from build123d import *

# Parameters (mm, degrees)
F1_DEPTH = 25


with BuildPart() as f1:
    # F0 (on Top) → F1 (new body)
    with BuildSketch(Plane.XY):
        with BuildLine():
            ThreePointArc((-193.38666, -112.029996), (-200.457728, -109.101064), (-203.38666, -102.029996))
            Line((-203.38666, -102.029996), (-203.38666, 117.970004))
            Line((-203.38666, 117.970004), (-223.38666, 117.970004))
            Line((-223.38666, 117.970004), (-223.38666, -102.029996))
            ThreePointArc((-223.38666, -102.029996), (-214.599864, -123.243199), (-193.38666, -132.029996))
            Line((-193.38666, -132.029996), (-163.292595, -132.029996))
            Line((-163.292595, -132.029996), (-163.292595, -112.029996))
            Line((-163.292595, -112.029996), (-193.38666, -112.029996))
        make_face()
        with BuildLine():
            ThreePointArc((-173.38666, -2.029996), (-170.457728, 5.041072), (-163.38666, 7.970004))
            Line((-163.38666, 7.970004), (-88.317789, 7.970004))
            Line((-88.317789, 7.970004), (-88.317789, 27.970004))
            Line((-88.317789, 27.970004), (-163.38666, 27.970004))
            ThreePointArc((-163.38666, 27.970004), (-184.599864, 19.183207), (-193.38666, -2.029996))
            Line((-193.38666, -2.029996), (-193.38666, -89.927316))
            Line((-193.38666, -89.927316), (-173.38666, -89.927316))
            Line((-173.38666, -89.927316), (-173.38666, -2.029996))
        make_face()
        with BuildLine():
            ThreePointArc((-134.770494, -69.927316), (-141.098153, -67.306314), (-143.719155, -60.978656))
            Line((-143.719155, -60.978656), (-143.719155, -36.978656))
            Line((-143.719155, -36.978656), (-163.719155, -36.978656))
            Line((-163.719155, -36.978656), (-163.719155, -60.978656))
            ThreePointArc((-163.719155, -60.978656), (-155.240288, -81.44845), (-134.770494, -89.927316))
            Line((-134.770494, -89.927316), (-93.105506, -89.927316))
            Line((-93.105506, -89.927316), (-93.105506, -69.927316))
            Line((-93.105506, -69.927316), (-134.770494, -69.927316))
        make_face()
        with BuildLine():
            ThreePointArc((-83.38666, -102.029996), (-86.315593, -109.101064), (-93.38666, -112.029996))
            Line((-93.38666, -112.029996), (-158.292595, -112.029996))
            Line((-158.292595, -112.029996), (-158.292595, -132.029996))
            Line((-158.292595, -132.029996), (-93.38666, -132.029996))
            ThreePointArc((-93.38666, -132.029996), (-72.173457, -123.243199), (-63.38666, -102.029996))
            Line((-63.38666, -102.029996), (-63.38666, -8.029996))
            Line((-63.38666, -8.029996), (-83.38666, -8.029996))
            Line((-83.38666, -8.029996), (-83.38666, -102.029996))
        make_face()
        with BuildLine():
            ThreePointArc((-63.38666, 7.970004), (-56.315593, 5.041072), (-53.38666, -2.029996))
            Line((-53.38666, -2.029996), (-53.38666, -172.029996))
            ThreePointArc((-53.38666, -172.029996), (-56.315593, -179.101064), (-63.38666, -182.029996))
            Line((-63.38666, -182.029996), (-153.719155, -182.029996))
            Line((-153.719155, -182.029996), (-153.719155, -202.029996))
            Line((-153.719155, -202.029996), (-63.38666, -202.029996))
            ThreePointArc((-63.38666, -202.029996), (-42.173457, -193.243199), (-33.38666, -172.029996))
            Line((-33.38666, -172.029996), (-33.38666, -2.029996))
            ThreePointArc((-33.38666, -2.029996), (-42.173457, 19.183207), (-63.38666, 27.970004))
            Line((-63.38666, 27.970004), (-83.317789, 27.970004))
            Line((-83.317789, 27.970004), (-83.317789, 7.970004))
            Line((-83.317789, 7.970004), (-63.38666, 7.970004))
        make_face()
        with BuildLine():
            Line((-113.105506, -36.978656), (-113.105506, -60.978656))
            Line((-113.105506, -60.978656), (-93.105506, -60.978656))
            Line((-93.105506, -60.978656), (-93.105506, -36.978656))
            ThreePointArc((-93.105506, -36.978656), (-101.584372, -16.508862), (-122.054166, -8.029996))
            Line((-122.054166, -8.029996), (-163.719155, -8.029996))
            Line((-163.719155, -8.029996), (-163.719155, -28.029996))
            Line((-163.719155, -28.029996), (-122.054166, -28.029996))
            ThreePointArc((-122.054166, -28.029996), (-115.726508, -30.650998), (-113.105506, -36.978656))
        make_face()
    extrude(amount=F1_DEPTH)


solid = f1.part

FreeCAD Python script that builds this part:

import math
import FreeCAD as App
import Part
import Sketcher

V = App.Vector
Q = App.Units.Quantity

doc = App.newDocument("Part")
body = doc.addObject("PartDesign::Body", "Body")
body.AllowCompound = True

# Sketch on XY plane
sketch1 = body.newObject("Sketcher::SketchObject", "Sketch")
sketch1.AttachmentSupport = (doc.getObject("XY_Plane"), [""])
sketch1.MapMode = "FlatFace"
sketch1.addGeometry([
    Part.ArcOfCircle(Part.Circle(V(-193.386661, -102.029997, 0), V(0, 0, 1), 9.999999), math.radians(179.999996), math.radians(270.000004)),  # 0
    Part.LineSegment(V(-203.38666, -102.029996, 0), V(-203.38666, 117.970004, 0)),  # 1
    Part.LineSegment(V(-203.38666, 117.970004, 0), V(-223.38666, 117.970004, 0)),  # 2
    Part.LineSegment(V(-223.38666, 117.970004, 0), V(-223.38666, -102.029996, 0)),  # 3
    Part.ArcOfCircle(Part.Circle(V(-193.38666, -102.029996, 0), V(0, 0, 1), 30), math.radians(180), math.radians(270)),  # 4
    Part.LineSegment(V(-193.38666, -132.029996, 0), V(-163.292595, -132.029996, 0)),  # 5
    Part.LineSegment(V(-163.292595, -132.029996, 0), V(-163.292595, -112.029996, 0)),  # 6
    Part.LineSegment(V(-163.292595, -112.029996, 0), V(-193.38666, -112.029996, 0)),  # 7
    Part.ArcOfCircle(Part.Circle(V(-163.386661, -2.029995, 0), V(0, 0, 1), 9.999999), math.radians(89.999996), math.radians(180.000004)),  # 8
    Part.LineSegment(V(-163.38666, 7.970004, 0), V(-88.317789, 7.970004, 0)),  # 9
    Part.LineSegment(V(-88.317789, 7.970004, 0), V(-88.317789, 27.970004, 0)),  # 10
    Part.LineSegment(V(-88.317789, 27.970004, 0), V(-163.38666, 27.970004, 0)),  # 11
    Part.ArcOfCircle(Part.Circle(V(-163.38666, -2.029996, 0), V(0, 0, 1), 30), math.radians(90), math.radians(180)),  # 12
    Part.LineSegment(V(-193.38666, -2.029996, 0), V(-193.38666, -89.927316, 0)),  # 13
    Part.LineSegment(V(-193.38666, -89.927316, 0), V(-173.38666, -89.927316, 0)),  # 14
    Part.LineSegment(V(-173.38666, -89.927316, 0), V(-173.38666, -2.029996, 0)),  # 15
    Part.ArcOfCircle(Part.Circle(V(-134.770494, -60.978655, 0), V(0, 0, 1), 8.948661), math.radians(-179.999996), math.radians(-89.999997)),  # 16
    Part.LineSegment(V(-143.719155, -60.978656, 0), V(-143.719155, -36.978656, 0)),  # 17
    Part.LineSegment(V(-143.719155, -36.978656, 0), V(-163.719155, -36.978656, 0)),  # 18
    Part.LineSegment(V(-163.719155, -36.978656, 0), V(-163.719155, -60.978656, 0)),  # 19
    Part.ArcOfCircle(Part.Circle(V(-134.770494, -60.978655, 0), V(0, 0, 1), 28.948661), math.radians(-179.999998), math.radians(-90)),  # 20
    Part.LineSegment(V(-134.770494, -89.927316, 0), V(-93.105506, -89.927316, 0)),  # 21
    Part.LineSegment(V(-93.105506, -89.927316, 0), V(-93.105506, -69.927316, 0)),  # 22
    Part.LineSegment(V(-93.105506, -69.927316, 0), V(-134.770494, -69.927316, 0)),  # 23
    Part.ArcOfCircle(Part.Circle(V(-93.386661, -102.029995, 0), V(0, 0, 1), 10.000001), math.radians(-89.999994), math.radians(-0.000006)),  # 24
    Part.LineSegment(V(-93.38666, -112.029996, 0), V(-158.292595, -112.029996, 0)),  # 25
    Part.LineSegment(V(-158.292595, -112.029996, 0), V(-158.292595, -132.029996, 0)),  # 26
    Part.LineSegment(V(-158.292595, -132.029996, 0), V(-93.38666, -132.029996, 0)),  # 27
    Part.ArcOfCircle(Part.Circle(V(-93.386661, -102.029995, 0), V(0, 0, 1), 30.000001), math.radians(-89.999997), math.radians(-0.000003)),  # 28
    Part.LineSegment(V(-63.38666, -102.029996, 0), V(-63.38666, -8.029996, 0)),  # 29
    Part.LineSegment(V(-63.38666, -8.029996, 0), V(-83.38666, -8.029996, 0)),  # 30
    Part.LineSegment(V(-83.38666, -8.029996, 0), V(-83.38666, -102.029996, 0)),  # 31
    Part.ArcOfCircle(Part.Circle(V(-63.386661, -2.029997, 0), V(0, 0, 1), 10.000001), math.radians(0.000006), math.radians(89.999994)),  # 32
    Part.LineSegment(V(-53.38666, -2.029996, 0), V(-53.38666, -172.029996, 0)),  # 33
    Part.ArcOfCircle(Part.Circle(V(-63.386661, -172.029995, 0), V(0, 0, 1), 10.000001), math.radians(-89.999994), math.radians(-0.000006)),  # 34
    Part.LineSegment(V(-63.38666, -182.029996, 0), V(-153.719155, -182.029996, 0)),  # 35
    Part.LineSegment(V(-153.719155, -182.029996, 0), V(-153.719155, -202.029996, 0)),  # 36
    Part.LineSegment(V(-153.719155, -202.029996, 0), V(-63.38666, -202.029996, 0)),  # 37
    Part.ArcOfCircle(Part.Circle(V(-63.386661, -172.029995, 0), V(0, 0, 1), 30.000001), math.radians(-89.999997), math.radians(-0.000003)),  # 38
    Part.LineSegment(V(-33.38666, -172.029996, 0), V(-33.38666, -2.029996, 0)),  # 39
    Part.ArcOfCircle(Part.Circle(V(-63.386661, -2.029997, 0), V(0, 0, 1), 30.000001), math.radians(0.000003), math.radians(89.999997)),  # 40
    Part.LineSegment(V(-63.38666, 27.970004, 0), V(-83.317789, 27.970004, 0)),  # 41
    Part.LineSegment(V(-83.317789, 27.970004, 0), V(-83.317789, 7.970004, 0)),  # 42
    Part.LineSegment(V(-83.317789, 7.970004, 0), V(-63.38666, 7.970004, 0)),  # 43
    Part.LineSegment(V(-113.105506, -36.978656, 0), V(-113.105506, -60.978656, 0)),  # 44
    Part.LineSegment(V(-113.105506, -60.978656, 0), V(-93.105506, -60.978656, 0)),  # 45
    Part.LineSegment(V(-93.105506, -60.978656, 0), V(-93.105506, -36.978656, 0)),  # 46
    Part.ArcOfCircle(Part.Circle(V(-122.054165, -36.978655, 0), V(0, 0, 1), 28.948659), math.radians(-0.000001), math.radians(90.000001)),  # 47
    Part.LineSegment(V(-122.054166, -8.029996, 0), V(-163.719155, -8.029996, 0)),  # 48
    Part.LineSegment(V(-163.719155, -8.029996, 0), V(-163.719155, -28.029996, 0)),  # 49
    Part.LineSegment(V(-163.719155, -28.029996, 0), V(-122.054166, -28.029996, 0)),  # 50
    Part.ArcOfCircle(Part.Circle(V(-122.054167, -36.978657, 0), V(0, 0, 1), 8.948661), math.radians(0.000004), math.radians(89.999996)),  # 51
], False)
sketch1.addConstraint([
    Sketcher.Constraint("Tangent", 0, 1, 1, 1),
    Sketcher.Constraint("Coincident", 1, 2, 2, 1),
    Sketcher.Constraint("Coincident", 2, 2, 3, 1),
    Sketcher.Constraint("Tangent", 3, 2, 4, 1),
    Sketcher.Constraint("Tangent", 4, 2, 5, 1),
    Sketcher.Constraint("Coincident", 5, 2, 6, 1),
    Sketcher.Constraint("Coincident", 6, 2, 7, 1),
    Sketcher.Constraint("Tangent", 7, 2, 0, 2),
    Sketcher.Constraint("Tangent", 8, 1, 9, 1),
    Sketcher.Constraint("Coincident", 9, 2, 10, 1),
    Sketcher.Constraint("Coincident", 10, 2, 11, 1),
    Sketcher.Constraint("Tangent", 11, 2, 12, 1),
    Sketcher.Constraint("Tangent", 12, 2, 13, 1),
    Sketcher.Constraint("Coincident", 13, 2, 14, 1),
    Sketcher.Constraint("Coincident", 14, 2, 15, 1),
    Sketcher.Constraint("Tangent", 15, 2, 8, 2),
    Sketcher.Constraint("Tangent", 16, 1, 17, 1),
    Sketcher.Constraint("Coincident", 17, 2, 18, 1),
    Sketcher.Constraint("Coincident", 18, 2, 19, 1),
    Sketcher.Constraint("Tangent", 19, 2, 20, 1),
    Sketcher.Constraint("Tangent", 20, 2, 21, 1),
    Sketcher.Constraint("Coincident", 21, 2, 22, 1),
    Sketcher.Constraint("Coincident", 22, 2, 23, 1),
    Sketcher.Constraint("Tangent", 23, 2, 16, 2),
    Sketcher.Constraint("Tangent", 24, 1, 25, 1),
    Sketcher.Constraint("Coincident", 25, 2, 26, 1),
    Sketcher.Constraint("Coincident", 26, 2, 27, 1),
    Sketcher.Constraint("Tangent", 27, 2, 28, 1),
    Sketcher.Constraint("Tangent", 28, 2, 29, 1),
    Sketcher.Constraint("Coincident", 29, 2, 30, 1),
    Sketcher.Constraint("Coincident", 30, 2, 31, 1),
    Sketcher.Constraint("Tangent", 31, 2, 24, 2),
    Sketcher.Constraint("Tangent", 32, 1, 33, 1),
    Sketcher.Constraint("Tangent", 33, 2, 34, 2),
    Sketcher.Constraint("Tangent", 34, 1, 35, 1),
    Sketcher.Constraint("Coincident", 35, 2, 36, 1),
    Sketcher.Constraint("Coincident", 36, 2, 37, 1),
    Sketcher.Constraint("Tangent", 37, 2, 38, 1),
    Sketcher.Constraint("Tangent", 38, 2, 39, 1),
    Sketcher.Constraint("Tangent", 39, 2, 40, 1),
    Sketcher.Constraint("Tangent", 40, 2, 41, 1),
    Sketcher.Constraint("Coincident", 41, 2, 42, 1),
    Sketcher.Constraint("Coincident", 42, 2, 43, 1),
    Sketcher.Constraint("Tangent", 43, 2, 32, 2),
    Sketcher.Constraint("Coincident", 44, 2, 45, 1),
    Sketcher.Constraint("Coincident", 45, 2, 46, 1),
    Sketcher.Constraint("Tangent", 46, 2, 47, 1),
    Sketcher.Constraint("Tangent", 47, 2, 48, 1),
    Sketcher.Constraint("Coincident", 48, 2, 49, 1),
    Sketcher.Constraint("Coincident", 49, 2, 50, 1),
    Sketcher.Constraint("Tangent", 50, 2, 51, 2),
    Sketcher.Constraint("Tangent", 51, 1, 44, 1),
    Sketcher.Constraint("Vertical", 1),
    Sketcher.Constraint("Horizontal", 2),
    Sketcher.Constraint("Vertical", 3),
    Sketcher.Constraint("Horizontal", 5),
    Sketcher.Constraint("Vertical", 6),
    Sketcher.Constraint("Horizontal", 7),
    Sketcher.Constraint("Horizontal", 9),
    Sketcher.Constraint("Vertical", 10),
    Sketcher.Constraint("Horizontal", 11),
    Sketcher.Constraint("Vertical", 13),
    Sketcher.Constraint("Horizontal", 14),
    Sketcher.Constraint("Vertical", 15),
    Sketcher.Constraint("Vertical", 17),
    Sketcher.Constraint("Horizontal", 18),
    Sketcher.Constraint("Vertical", 19),
    Sketcher.Constraint("Horizontal", 21),
    Sketcher.Constraint("Vertical", 22),
    Sketcher.Constraint("Horizontal", 23),
    Sketcher.Constraint("Horizontal", 25),
    Sketcher.Constraint("Vertical", 26),
    Sketcher.Constraint("Horizontal", 27),
    Sketcher.Constraint("Vertical", 29),
    Sketcher.Constraint("Horizontal", 30),
    Sketcher.Constraint("Vertical", 31),
    Sketcher.Constraint("Vertical", 33),
    Sketcher.Constraint("Horizontal", 35),
    Sketcher.Constraint("Vertical", 36),
    Sketcher.Constraint("Horizontal", 37),
    Sketcher.Constraint("Vertical", 39),
    Sketcher.Constraint("Horizontal", 41),
    Sketcher.Constraint("Vertical", 42),
    Sketcher.Constraint("Horizontal", 43),
    Sketcher.Constraint("Vertical", 44),
    Sketcher.Constraint("Horizontal", 45),
    Sketcher.Constraint("Vertical", 46),
    Sketcher.Constraint("Horizontal", 48),
    Sketcher.Constraint("Vertical", 49),
    Sketcher.Constraint("Horizontal", 50),
    Sketcher.Constraint("Coincident", 4, 3, 0, 3),
    Sketcher.Constraint("Coincident", 12, 3, 8, 3),
    Sketcher.Constraint("Coincident", 20, 3, 16, 3),
    Sketcher.Constraint("Coincident", 28, 3, 24, 3),
    Sketcher.Constraint("Coincident", 38, 3, 34, 3),
    Sketcher.Constraint("Coincident", 40, 3, 32, 3),
    Sketcher.Constraint("Coincident", 51, 3, 47, 3),
    Sketcher.Constraint("Equal", 0, 8),
    Sketcher.Constraint("Equal", 4, 12),
    Sketcher.Constraint("Equal", 8, 24),
    Sketcher.Constraint("Equal", 12, 28),
    Sketcher.Constraint("Equal", 24, 32),
    Sketcher.Constraint("Equal", 32, 34),
    Sketcher.Constraint("Equal", 28, 38),
    Sketcher.Constraint("Equal", 20, 47),
    Sketcher.Constraint("Equal", 16, 51),
    Sketcher.Constraint("Horizontal", 4, 3, 24, 3),
    Sketcher.Constraint("Horizontal", 12, 3, 32, 3),
    Sketcher.Constraint("Horizontal", 51, 3, 17, 2),
    Sketcher.Constraint("Horizontal", 14, 2, 20, 2),
    Sketcher.Constraint("Horizontal", 19, 2, 44, 2),
    Sketcher.Constraint("Horizontal", 30, 2, 47, 2),
    Sketcher.Constraint("Vertical", 7, 2, 12, 2),
    Sketcher.Constraint("Vertical", 40, 3, 28, 2),
    Sketcher.Constraint("Vertical", 22, 2, 45, 2),
    Sketcher.Constraint("Vertical", 19, 2, 48, 2),
    Sketcher.Constraint("Equal", 14, 18),
    Sketcher.Constraint("Radius", 0, Q("9.999999 mm")),
    Sketcher.Constraint("Radius", 4, Q("30 mm")),
    Sketcher.Constraint("DistanceY", 1, 1, 1, 2, Q("220 mm")),
    Sketcher.Constraint("DistanceY", 17, 1, 17, 2, Q("24 mm")),
    Sketcher.Constraint("DistanceY", 29, 1, 29, 2, Q("94 mm")),
    Sketcher.Constraint("DistanceY", 33, 2, 33, 1, Q("170 mm")),
    Sketcher.Constraint("Radius", 16, Q("8.948661 mm")),
    Sketcher.Constraint("DistanceX", 9, 1, 9, 2, Q("75.068871 mm")),
    Sketcher.Constraint("DistanceX", 21, 1, 21, 2, Q("41.664988 mm")),
    Sketcher.Constraint("DistanceX", 41, 2, 41, 1, Q("19.931129 mm")),
    Sketcher.Constraint("DistanceY", 13, 2, 13, 1, Q("87.89732 mm")),
    Sketcher.Constraint("DistanceX", 5, 1, 5, 2, Q("30.094065 mm")),
    Sketcher.Constraint("DistanceX", 25, 2, 25, 1, Q("64.905935 mm")),
    Sketcher.Constraint("DistanceX", 35, 2, 35, 1, Q("90.332495 mm")),
    Sketcher.Constraint("DistanceX", 0, 3, -1, 1, Q("193.386661 mm")),
    Sketcher.Constraint("DistanceX", 24, 3, -1, 1, Q("93.386661 mm")),
    Sketcher.Constraint("DistanceY", 0, 3, -1, 1, Q("102.029997 mm")),
    Sketcher.Constraint("DistanceX", 16, 3, -1, 1, Q("134.770494 mm")),
])
pad1 = body.newObject("PartDesign::Pad", "Pad")
pad1.Profile = sketch1
pad1.Length = 25

doc.recompute()
